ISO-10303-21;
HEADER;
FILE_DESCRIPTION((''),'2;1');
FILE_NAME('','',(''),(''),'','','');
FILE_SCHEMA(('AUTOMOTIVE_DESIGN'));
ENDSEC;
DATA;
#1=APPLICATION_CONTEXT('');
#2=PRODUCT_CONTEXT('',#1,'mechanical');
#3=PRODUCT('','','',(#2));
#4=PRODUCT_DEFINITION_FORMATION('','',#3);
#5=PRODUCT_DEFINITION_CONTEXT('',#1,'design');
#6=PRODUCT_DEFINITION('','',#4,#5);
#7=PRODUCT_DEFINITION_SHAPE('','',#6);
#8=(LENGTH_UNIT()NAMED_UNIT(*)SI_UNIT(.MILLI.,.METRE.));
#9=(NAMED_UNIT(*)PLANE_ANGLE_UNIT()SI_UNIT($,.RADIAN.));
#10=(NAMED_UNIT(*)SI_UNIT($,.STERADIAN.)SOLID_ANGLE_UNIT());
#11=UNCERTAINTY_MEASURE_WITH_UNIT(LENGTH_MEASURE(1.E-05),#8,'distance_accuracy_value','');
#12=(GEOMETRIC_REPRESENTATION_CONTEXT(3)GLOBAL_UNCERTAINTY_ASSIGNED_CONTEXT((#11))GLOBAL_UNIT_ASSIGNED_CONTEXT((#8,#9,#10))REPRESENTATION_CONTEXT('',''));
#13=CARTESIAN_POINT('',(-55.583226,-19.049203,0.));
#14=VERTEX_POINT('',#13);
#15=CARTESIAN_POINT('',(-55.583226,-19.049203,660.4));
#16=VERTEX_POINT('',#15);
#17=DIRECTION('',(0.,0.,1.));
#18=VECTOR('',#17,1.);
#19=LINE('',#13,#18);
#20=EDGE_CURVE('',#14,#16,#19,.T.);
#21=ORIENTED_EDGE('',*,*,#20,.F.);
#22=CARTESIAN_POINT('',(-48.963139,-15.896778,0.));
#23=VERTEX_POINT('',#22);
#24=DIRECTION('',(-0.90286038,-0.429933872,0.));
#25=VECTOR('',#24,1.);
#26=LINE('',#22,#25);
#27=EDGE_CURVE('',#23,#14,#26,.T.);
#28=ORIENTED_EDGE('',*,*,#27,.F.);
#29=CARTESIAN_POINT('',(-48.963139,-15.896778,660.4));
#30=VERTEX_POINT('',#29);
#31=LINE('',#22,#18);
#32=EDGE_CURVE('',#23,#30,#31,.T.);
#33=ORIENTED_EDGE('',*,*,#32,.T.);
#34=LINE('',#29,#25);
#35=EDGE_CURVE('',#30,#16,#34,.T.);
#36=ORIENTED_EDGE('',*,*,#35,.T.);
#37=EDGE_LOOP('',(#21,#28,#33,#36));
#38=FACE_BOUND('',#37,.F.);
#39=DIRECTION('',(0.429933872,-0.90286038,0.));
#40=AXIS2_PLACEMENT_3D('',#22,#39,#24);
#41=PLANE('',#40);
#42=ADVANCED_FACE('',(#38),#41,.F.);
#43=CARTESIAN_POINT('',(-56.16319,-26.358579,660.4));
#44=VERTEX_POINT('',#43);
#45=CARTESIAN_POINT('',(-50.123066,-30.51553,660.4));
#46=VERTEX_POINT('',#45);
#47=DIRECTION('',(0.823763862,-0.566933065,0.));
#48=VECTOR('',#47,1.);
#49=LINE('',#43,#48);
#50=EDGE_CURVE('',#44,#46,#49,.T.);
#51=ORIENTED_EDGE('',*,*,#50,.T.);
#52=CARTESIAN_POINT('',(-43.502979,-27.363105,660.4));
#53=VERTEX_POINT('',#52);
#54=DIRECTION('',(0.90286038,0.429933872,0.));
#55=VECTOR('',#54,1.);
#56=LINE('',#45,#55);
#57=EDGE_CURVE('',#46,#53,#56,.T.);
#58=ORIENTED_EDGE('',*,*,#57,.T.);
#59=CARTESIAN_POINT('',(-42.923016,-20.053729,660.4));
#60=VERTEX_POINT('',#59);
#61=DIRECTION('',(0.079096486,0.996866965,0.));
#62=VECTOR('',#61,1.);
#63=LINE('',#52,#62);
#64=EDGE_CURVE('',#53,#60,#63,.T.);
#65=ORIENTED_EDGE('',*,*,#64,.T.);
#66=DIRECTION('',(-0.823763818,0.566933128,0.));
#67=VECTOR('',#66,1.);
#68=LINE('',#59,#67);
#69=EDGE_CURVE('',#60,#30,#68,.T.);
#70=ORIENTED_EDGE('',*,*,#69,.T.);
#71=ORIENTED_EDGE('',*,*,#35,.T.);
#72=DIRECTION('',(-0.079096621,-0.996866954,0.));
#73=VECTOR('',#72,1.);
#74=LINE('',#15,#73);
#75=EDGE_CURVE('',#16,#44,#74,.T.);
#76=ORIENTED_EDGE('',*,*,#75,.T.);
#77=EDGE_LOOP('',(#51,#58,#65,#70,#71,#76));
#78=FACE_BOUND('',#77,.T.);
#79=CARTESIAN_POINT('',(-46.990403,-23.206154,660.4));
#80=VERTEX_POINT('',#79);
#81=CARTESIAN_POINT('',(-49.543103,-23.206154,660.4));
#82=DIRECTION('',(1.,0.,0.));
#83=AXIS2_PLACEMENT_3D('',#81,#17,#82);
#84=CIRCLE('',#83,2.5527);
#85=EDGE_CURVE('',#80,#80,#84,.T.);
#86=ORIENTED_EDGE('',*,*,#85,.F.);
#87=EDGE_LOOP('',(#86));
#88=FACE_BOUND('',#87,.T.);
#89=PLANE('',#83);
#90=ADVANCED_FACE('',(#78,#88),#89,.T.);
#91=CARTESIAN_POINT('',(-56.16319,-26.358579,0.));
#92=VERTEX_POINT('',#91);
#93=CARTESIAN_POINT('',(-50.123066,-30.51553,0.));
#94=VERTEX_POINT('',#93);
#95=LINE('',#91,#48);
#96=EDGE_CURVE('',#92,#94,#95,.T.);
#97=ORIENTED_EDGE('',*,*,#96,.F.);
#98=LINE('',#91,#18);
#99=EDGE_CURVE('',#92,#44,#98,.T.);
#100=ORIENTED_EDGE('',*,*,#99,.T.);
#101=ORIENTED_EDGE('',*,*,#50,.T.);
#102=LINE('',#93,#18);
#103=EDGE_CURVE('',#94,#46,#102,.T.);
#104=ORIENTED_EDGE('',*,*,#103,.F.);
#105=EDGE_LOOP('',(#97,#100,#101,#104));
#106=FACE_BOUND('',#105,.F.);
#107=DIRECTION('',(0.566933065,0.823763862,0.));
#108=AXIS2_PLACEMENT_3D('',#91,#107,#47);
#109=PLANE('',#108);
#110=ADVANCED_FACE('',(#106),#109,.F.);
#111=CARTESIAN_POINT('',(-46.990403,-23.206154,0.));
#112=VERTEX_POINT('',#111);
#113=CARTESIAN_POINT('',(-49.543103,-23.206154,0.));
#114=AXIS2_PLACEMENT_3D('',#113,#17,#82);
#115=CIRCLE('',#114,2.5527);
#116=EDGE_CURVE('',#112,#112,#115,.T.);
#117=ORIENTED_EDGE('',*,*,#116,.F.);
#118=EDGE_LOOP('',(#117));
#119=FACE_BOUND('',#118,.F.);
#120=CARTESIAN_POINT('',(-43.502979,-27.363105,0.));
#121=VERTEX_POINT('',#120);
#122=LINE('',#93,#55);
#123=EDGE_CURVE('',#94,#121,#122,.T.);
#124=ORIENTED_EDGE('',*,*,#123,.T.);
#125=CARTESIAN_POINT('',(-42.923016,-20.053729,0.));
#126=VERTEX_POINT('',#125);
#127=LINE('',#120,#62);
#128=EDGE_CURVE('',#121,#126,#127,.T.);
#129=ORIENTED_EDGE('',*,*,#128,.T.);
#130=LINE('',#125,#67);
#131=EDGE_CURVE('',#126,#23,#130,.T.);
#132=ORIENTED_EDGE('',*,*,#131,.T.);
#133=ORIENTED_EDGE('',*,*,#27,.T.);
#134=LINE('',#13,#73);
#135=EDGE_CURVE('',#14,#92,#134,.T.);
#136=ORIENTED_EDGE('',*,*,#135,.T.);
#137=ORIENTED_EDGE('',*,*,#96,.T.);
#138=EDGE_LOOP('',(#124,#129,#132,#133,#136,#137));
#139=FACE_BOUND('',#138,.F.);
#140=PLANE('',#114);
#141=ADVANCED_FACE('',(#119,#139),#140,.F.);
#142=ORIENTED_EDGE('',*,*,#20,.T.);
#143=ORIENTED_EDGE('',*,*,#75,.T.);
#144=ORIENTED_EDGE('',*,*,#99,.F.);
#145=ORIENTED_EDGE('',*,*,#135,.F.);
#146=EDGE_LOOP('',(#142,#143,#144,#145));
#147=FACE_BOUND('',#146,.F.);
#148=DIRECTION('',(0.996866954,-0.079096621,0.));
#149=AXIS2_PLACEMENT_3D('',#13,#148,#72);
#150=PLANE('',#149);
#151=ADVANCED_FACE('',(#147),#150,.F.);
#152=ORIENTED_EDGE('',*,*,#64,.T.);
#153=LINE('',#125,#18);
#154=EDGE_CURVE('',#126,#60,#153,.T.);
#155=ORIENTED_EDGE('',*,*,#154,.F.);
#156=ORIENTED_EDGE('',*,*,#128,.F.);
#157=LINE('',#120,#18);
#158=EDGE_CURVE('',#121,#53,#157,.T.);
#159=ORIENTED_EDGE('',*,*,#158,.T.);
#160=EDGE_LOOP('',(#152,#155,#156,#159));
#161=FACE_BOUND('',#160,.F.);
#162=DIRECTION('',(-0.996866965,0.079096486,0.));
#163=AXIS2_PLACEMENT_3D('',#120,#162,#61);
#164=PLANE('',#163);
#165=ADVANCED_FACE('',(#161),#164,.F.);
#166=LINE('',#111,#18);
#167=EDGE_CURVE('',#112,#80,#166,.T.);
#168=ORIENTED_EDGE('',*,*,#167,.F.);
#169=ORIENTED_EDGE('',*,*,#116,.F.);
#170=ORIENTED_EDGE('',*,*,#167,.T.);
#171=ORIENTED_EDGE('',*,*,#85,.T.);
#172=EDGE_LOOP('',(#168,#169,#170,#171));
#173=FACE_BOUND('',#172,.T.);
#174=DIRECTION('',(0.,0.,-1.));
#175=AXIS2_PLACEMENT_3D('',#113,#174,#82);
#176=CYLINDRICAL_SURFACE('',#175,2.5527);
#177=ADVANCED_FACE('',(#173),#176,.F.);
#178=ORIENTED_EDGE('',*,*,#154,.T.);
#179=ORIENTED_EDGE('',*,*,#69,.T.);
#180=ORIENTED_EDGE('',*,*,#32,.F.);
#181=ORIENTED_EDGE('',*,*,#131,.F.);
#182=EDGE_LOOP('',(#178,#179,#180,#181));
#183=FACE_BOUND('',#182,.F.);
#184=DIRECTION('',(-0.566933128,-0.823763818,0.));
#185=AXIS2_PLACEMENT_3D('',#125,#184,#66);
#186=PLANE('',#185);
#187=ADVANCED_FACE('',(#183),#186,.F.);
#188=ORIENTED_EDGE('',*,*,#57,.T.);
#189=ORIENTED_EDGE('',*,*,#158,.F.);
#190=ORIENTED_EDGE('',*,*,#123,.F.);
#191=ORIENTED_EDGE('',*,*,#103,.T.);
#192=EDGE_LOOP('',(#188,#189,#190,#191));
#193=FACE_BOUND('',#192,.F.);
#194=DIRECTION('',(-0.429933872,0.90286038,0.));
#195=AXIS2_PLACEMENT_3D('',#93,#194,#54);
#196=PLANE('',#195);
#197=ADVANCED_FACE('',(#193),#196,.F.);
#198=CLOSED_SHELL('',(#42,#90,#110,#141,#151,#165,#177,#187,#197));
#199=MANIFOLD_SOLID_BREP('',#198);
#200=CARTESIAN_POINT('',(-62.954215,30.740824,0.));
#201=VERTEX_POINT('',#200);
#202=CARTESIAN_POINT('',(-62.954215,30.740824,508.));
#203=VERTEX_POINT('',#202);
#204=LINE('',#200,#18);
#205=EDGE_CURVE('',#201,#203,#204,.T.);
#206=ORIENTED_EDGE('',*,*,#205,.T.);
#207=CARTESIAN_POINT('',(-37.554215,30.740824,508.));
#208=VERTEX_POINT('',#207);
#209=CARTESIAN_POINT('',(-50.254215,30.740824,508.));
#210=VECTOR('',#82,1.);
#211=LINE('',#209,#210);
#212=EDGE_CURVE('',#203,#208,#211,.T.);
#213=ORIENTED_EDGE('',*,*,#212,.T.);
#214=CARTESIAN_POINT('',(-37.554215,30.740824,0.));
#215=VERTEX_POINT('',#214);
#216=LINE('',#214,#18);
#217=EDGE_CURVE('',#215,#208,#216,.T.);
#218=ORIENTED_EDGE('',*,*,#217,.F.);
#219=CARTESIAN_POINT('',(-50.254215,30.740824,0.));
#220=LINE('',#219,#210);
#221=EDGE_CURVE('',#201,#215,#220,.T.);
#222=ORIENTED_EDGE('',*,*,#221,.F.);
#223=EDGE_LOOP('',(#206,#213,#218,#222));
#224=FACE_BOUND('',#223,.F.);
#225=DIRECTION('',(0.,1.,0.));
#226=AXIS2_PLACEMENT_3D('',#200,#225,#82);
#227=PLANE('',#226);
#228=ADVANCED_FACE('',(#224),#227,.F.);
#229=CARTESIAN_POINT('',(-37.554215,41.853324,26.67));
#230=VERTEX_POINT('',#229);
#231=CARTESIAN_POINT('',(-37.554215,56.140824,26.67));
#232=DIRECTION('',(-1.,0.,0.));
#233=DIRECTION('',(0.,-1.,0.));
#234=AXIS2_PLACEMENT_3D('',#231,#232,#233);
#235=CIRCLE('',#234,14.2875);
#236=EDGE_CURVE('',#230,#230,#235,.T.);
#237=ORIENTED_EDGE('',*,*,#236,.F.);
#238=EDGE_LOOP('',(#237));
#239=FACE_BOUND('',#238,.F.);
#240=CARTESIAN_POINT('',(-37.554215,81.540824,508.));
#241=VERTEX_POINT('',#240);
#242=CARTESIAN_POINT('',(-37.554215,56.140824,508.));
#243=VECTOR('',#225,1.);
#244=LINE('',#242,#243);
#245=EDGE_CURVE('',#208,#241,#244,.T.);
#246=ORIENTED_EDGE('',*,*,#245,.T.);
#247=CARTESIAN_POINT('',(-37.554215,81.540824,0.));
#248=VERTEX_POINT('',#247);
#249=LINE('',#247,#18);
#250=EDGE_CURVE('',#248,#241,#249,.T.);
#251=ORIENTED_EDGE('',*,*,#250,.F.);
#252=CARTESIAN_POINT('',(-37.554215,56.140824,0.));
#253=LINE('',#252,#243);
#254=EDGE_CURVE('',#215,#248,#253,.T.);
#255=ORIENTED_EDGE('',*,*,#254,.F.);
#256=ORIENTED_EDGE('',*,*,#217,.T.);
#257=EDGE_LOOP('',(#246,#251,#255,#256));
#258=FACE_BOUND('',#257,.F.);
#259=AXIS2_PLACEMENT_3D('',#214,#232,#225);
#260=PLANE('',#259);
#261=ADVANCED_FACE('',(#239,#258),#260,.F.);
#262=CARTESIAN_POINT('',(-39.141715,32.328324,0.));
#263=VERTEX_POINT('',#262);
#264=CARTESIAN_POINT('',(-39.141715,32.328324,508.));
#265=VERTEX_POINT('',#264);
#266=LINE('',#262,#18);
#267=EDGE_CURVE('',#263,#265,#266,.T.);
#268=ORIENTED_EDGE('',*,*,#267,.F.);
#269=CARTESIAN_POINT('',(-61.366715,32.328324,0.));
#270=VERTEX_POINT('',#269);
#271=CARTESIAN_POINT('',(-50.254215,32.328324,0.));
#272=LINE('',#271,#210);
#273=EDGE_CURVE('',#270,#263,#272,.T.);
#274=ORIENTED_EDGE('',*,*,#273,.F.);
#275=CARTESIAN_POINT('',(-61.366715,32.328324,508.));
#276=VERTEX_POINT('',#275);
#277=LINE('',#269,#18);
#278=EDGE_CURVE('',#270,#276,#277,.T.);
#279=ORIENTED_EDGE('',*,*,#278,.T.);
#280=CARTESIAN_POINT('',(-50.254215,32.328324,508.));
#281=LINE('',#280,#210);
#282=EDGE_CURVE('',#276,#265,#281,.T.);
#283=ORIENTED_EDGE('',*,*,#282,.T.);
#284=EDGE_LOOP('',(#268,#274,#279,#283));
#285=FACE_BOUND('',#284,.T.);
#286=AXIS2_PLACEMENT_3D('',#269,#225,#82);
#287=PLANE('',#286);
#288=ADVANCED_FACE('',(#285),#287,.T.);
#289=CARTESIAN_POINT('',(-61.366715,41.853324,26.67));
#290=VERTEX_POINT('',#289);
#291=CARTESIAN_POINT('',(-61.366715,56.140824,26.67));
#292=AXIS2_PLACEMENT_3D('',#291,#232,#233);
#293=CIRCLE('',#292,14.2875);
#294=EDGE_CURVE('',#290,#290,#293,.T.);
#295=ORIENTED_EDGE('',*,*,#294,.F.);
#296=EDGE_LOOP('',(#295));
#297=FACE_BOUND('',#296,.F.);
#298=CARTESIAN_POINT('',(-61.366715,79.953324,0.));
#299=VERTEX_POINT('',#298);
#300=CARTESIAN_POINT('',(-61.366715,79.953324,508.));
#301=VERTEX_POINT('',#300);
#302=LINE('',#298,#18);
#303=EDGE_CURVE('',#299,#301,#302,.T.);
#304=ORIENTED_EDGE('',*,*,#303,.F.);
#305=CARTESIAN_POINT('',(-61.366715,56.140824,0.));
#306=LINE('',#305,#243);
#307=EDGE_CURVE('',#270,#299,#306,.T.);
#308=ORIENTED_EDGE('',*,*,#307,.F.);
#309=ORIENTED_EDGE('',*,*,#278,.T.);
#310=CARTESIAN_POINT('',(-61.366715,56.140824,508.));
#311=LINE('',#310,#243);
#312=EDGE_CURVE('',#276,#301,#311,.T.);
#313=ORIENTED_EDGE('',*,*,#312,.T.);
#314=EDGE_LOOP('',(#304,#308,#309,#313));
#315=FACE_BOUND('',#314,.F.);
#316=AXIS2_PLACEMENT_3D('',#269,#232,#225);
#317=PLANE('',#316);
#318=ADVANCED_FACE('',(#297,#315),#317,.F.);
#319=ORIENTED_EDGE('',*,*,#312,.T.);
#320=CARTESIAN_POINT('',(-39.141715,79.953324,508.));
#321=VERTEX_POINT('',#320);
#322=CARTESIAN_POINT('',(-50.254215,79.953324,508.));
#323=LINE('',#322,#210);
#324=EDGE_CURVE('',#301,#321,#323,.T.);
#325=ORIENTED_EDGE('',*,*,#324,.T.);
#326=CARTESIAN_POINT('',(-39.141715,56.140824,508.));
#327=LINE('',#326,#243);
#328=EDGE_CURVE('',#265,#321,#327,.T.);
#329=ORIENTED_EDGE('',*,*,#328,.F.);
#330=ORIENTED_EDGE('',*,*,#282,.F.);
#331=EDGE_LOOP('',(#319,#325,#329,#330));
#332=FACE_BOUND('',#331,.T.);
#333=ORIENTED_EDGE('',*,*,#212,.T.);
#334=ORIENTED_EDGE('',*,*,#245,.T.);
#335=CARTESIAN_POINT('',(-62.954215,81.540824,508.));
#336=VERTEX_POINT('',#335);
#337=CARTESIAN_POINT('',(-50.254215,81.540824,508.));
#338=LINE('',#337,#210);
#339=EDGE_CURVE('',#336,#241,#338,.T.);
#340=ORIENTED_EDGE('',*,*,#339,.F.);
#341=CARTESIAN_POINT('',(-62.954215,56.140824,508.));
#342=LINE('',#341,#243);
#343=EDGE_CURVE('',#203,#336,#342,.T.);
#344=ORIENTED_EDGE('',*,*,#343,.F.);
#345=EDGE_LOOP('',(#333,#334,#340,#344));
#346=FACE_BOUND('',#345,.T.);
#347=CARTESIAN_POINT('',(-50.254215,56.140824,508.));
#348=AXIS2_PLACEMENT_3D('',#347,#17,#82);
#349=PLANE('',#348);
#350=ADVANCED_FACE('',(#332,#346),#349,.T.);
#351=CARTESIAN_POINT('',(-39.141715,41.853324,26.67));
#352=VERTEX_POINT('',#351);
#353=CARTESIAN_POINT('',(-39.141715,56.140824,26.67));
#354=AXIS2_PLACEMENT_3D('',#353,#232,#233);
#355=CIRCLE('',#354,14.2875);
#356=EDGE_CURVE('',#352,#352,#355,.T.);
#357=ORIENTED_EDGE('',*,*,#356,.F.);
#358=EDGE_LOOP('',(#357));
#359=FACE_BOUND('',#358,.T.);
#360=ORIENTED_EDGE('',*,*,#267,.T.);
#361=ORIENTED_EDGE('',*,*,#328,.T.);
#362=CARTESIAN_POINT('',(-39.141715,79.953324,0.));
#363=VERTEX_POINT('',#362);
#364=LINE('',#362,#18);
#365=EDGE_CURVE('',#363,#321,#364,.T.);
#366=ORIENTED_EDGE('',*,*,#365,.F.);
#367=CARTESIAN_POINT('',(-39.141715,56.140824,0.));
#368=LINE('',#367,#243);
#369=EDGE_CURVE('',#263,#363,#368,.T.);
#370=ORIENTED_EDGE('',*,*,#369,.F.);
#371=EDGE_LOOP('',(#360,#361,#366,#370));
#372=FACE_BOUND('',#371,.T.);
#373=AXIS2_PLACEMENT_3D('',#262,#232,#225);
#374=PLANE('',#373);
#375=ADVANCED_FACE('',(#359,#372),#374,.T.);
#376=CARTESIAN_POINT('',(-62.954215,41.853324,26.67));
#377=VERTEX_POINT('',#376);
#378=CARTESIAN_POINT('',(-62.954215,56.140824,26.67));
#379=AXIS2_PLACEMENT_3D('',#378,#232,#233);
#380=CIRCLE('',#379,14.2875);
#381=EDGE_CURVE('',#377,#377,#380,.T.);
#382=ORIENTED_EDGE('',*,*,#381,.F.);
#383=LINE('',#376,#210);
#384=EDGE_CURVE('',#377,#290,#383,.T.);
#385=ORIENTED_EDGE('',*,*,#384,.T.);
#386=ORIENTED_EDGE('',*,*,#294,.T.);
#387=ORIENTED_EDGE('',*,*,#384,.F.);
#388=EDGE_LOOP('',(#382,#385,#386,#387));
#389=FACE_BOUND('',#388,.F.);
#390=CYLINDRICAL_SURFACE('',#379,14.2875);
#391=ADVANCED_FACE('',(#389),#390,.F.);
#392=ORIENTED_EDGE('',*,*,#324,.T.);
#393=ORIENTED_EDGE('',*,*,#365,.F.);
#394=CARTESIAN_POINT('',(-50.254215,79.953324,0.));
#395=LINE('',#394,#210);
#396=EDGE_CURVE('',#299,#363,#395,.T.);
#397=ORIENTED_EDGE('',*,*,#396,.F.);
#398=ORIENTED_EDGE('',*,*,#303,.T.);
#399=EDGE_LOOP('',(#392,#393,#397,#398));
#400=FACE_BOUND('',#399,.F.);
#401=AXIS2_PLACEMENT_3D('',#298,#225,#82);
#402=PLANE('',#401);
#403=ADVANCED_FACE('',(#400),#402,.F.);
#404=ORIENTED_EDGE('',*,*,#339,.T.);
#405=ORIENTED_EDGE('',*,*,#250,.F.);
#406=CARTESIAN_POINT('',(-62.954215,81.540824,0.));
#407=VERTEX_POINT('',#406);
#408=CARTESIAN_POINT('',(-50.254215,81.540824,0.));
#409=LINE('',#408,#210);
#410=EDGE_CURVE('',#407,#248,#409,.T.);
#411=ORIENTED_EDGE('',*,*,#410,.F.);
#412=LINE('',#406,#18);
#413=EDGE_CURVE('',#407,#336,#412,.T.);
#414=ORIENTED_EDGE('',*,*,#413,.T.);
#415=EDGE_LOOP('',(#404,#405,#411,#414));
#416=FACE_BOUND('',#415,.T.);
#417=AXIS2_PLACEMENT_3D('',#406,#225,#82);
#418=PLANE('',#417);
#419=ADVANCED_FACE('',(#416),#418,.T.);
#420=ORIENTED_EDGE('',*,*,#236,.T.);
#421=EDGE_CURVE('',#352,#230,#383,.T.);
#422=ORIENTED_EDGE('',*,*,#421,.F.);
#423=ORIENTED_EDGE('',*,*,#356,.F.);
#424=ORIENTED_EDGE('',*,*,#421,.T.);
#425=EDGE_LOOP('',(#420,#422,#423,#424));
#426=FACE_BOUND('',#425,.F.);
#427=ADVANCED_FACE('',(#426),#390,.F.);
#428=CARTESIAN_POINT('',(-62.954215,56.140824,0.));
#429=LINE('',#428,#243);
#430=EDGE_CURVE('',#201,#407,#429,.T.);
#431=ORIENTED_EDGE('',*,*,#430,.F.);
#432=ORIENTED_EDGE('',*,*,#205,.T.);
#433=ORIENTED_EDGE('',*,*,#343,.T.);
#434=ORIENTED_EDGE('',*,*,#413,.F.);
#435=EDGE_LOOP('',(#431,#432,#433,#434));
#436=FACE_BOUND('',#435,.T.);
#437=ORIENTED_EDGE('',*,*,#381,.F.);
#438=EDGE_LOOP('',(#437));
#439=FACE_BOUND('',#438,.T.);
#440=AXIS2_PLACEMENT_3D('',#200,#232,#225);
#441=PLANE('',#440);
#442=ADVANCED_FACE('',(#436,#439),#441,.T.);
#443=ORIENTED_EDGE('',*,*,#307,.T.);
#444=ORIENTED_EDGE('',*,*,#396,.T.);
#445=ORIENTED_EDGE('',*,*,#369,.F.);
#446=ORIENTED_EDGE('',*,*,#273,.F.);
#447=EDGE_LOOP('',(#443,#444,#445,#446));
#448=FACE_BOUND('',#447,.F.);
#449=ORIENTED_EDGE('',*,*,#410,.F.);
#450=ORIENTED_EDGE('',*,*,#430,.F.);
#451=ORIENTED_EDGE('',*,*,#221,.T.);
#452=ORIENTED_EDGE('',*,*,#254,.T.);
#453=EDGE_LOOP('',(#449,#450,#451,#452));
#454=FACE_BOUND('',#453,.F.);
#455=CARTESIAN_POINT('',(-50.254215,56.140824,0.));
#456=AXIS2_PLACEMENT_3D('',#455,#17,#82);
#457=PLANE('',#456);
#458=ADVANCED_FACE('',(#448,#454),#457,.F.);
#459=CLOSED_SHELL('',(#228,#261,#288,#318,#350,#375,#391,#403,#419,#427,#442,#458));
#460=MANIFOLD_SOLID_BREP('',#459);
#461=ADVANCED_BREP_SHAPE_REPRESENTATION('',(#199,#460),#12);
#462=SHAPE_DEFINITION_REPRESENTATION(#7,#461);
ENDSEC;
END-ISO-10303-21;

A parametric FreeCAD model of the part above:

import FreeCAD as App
import Part
import Sketcher

V = App.Vector
Q = App.Units.Quantity

doc = App.newDocument("Part")
body = doc.addObject("PartDesign::Body", "Body")

sketch1 = body.newObject("Sketcher::SketchObject", "Sketch")
sketch1.AttachmentSupport = (doc.getObject("XY_Plane"), [""])
sketch1.MapMode = "FlatFace"
sketch1.addGeometry([
    Part.LineSegment(V(-63, 82, 0), V(-63, 31, 0)),
    Part.LineSegment(V(-63, 31, 0), V(-38, 31, 0)),
    Part.LineSegment(V(-38, 31, 0), V(-38, 82, 0)),
    Part.LineSegment(V(-38, 82, 0), V(-63, 82, 0)),
    Part.LineSegment(V(-39, 32, 0), V(-61, 32, 0)),
    Part.LineSegment(V(-61, 32, 0), V(-61, 80, 0)),
    Part.LineSegment(V(-61, 80, 0), V(-39, 80, 0)),
    Part.LineSegment(V(-39, 80, 0), V(-39, 32, 0)),
], False)
sketch1.addConstraint([
    Sketcher.Constraint("Coincident", 0, 2, 1, 1),
    Sketcher.Constraint("Coincident", 1, 2, 2, 1),
    Sketcher.Constraint("Coincident", 2, 2, 3, 1),
    Sketcher.Constraint("Coincident", 3, 2, 0, 1),
    Sketcher.Constraint("Coincident", 4, 2, 5, 1),
    Sketcher.Constraint("Coincident", 5, 2, 6, 1),
    Sketcher.Constraint("Coincident", 6, 2, 7, 1),
    Sketcher.Constraint("Coincident", 7, 2, 4, 1),
    Sketcher.Constraint("Vertical", 0),
    Sketcher.Constraint("Horizontal", 1),
    Sketcher.Constraint("Vertical", 2),
    Sketcher.Constraint("Horizontal", 3),
    Sketcher.Constraint("Horizontal", 4),
    Sketcher.Constraint("Vertical", 5),
    Sketcher.Constraint("Horizontal", 6),
    Sketcher.Constraint("Vertical", 7),
    Sketcher.Constraint("DistanceX", 1, 1, 1, 2, Q("1 in")),
    Sketcher.Constraint("DistanceY", 0, 2, 0, 1, Q("2 in")),
    Sketcher.Constraint("DistanceX", 4, 2, 4, 1, Q("0.875 in")),
    Sketcher.Constraint("DistanceY", 5, 1, 5, 2, Q("1.875 in")),
    Sketcher.Constraint("DistanceX", 0, 2, 4, 2, Q("0.0625 in")),
    Sketcher.Constraint("DistanceY", 0, 2, 4, 2, Q("0.0625 in")),
    Sketcher.Constraint("DistanceX", 0, 2, -1, 1, 62.954215),
    Sketcher.Constraint("DistanceY", -1, 1, 0, 2, 30.740824),
])
pad1 = body.newObject("PartDesign::Pad", "Pad")
pad1.Profile = sketch1
pad1.Length = Q("20 in")

sketch2 = body.newObject("Sketcher::SketchObject", "Sketch001")
sketch2.AttachmentSupport = (doc.getObject("YZ_Plane"), [""])
sketch2.MapMode = "FlatFace"
sketch2.AttachmentOffset = App.Placement(V(0, 0, -62.954215), App.Rotation())
sketch2.addGeometry(Part.Circle(V(56, 27, 0), V(0, 0, 1), 14), False)
sketch2.addConstraint([
    Sketcher.Constraint("Diameter", 0, Q("1.125 in")),
    Sketcher.Constraint("DistanceY", -1, 1, 0, 3, Q("1.05 in")),
    Sketcher.Constraint("DistanceX", -1, 1, 0, 3, 56.140824),
])
pocket1 = body.newObject("PartDesign::Pocket", "Pocket")
pocket1.Profile = sketch2
pocket1.Type = "ThroughAll"
pocket1.Reversed = True
body2 = doc.addObject("PartDesign::Body", "Body001")

sketch3 = body2.newObject("Sketcher::SketchObject", "Sketch002")
sketch3.AttachmentSupport = (doc.getObject("XY_Plane001"), [""])
sketch3.MapMode = "FlatFace"
sketch3.addGeometry([
    Part.LineSegment(V(-50.1, -30.5, 0), V(-43.5, -27.4, 0)),
    Part.LineSegment(V(-43.5, -27.4, 0), V(-42.9, -20.1, 0)),
    Part.LineSegment(V(-42.9, -20.1, 0), V(-49, -15.9, 0)),
    Part.LineSegment(V(-49, -15.9, 0), V(-55.6, -19, 0)),
    Part.LineSegment(V(-55.6, -19, 0), V(-56.2, -26.4, 0)),
    Part.LineSegment(V(-56.2, -26.4, 0), V(-50.1, -30.5, 0)),
    Part.Circle(V(-49.5, -23.2, 0), V(0, 0, 1), 2.6),
], False)
sketch3.addConstraint([
    Sketcher.Constraint("Coincident", 0, 2, 1, 1),
    Sketcher.Constraint("Coincident", 1, 2, 2, 1),
    Sketcher.Constraint("Coincident", 2, 2, 3, 1),
    Sketcher.Constraint("Coincident", 3, 2, 4, 1),
    Sketcher.Constraint("Coincident", 4, 2, 5, 1),
    Sketcher.Constraint("Coincident", 5, 2, 0, 1),
    Sketcher.Constraint("Parallel", 0, 3),
    Sketcher.Constraint("Parallel", 1, 4),
    Sketcher.Constraint("Parallel", 2, 5),
    Sketcher.Constraint("Equal", 0, 1),
    Sketcher.Constraint("Equal", 1, 2),
    Sketcher.Constraint("Equal", 2, 3),
    Sketcher.Constraint("Diameter", 6, Q("0.201 in")),
    Sketcher.Constraint("DistanceX", 6, 3, 0, 2, Q("0.2378002 in")),
    Sketcher.Constraint("DistanceX", 2, 2, 1, 2, Q("0.2378001 in")),
    Sketcher.Constraint("DistanceX", 3, 2, 6, 3, Q("0.2378001 in")),
    Sketcher.Constraint("DistanceY", 4, 2, 2, 2, 10.461801),
    Sketcher.Constraint("Distance", 0, 7.332349),
    Sketcher.Constraint("DistanceX", 0, 2, -1, 1, 43.502979),
    Sketcher.Constraint("DistanceY", 1, 2, -1, 1, 20.053729),
    Sketcher.Constraint("DistanceY", 0, 2, 6, 3, 4.156951),
])
pad2 = body2.newObject("PartDesign::Pad", "Pad001")
pad2.Profile = sketch3
pad2.Length = Q("26 in")

doc.recompute()
